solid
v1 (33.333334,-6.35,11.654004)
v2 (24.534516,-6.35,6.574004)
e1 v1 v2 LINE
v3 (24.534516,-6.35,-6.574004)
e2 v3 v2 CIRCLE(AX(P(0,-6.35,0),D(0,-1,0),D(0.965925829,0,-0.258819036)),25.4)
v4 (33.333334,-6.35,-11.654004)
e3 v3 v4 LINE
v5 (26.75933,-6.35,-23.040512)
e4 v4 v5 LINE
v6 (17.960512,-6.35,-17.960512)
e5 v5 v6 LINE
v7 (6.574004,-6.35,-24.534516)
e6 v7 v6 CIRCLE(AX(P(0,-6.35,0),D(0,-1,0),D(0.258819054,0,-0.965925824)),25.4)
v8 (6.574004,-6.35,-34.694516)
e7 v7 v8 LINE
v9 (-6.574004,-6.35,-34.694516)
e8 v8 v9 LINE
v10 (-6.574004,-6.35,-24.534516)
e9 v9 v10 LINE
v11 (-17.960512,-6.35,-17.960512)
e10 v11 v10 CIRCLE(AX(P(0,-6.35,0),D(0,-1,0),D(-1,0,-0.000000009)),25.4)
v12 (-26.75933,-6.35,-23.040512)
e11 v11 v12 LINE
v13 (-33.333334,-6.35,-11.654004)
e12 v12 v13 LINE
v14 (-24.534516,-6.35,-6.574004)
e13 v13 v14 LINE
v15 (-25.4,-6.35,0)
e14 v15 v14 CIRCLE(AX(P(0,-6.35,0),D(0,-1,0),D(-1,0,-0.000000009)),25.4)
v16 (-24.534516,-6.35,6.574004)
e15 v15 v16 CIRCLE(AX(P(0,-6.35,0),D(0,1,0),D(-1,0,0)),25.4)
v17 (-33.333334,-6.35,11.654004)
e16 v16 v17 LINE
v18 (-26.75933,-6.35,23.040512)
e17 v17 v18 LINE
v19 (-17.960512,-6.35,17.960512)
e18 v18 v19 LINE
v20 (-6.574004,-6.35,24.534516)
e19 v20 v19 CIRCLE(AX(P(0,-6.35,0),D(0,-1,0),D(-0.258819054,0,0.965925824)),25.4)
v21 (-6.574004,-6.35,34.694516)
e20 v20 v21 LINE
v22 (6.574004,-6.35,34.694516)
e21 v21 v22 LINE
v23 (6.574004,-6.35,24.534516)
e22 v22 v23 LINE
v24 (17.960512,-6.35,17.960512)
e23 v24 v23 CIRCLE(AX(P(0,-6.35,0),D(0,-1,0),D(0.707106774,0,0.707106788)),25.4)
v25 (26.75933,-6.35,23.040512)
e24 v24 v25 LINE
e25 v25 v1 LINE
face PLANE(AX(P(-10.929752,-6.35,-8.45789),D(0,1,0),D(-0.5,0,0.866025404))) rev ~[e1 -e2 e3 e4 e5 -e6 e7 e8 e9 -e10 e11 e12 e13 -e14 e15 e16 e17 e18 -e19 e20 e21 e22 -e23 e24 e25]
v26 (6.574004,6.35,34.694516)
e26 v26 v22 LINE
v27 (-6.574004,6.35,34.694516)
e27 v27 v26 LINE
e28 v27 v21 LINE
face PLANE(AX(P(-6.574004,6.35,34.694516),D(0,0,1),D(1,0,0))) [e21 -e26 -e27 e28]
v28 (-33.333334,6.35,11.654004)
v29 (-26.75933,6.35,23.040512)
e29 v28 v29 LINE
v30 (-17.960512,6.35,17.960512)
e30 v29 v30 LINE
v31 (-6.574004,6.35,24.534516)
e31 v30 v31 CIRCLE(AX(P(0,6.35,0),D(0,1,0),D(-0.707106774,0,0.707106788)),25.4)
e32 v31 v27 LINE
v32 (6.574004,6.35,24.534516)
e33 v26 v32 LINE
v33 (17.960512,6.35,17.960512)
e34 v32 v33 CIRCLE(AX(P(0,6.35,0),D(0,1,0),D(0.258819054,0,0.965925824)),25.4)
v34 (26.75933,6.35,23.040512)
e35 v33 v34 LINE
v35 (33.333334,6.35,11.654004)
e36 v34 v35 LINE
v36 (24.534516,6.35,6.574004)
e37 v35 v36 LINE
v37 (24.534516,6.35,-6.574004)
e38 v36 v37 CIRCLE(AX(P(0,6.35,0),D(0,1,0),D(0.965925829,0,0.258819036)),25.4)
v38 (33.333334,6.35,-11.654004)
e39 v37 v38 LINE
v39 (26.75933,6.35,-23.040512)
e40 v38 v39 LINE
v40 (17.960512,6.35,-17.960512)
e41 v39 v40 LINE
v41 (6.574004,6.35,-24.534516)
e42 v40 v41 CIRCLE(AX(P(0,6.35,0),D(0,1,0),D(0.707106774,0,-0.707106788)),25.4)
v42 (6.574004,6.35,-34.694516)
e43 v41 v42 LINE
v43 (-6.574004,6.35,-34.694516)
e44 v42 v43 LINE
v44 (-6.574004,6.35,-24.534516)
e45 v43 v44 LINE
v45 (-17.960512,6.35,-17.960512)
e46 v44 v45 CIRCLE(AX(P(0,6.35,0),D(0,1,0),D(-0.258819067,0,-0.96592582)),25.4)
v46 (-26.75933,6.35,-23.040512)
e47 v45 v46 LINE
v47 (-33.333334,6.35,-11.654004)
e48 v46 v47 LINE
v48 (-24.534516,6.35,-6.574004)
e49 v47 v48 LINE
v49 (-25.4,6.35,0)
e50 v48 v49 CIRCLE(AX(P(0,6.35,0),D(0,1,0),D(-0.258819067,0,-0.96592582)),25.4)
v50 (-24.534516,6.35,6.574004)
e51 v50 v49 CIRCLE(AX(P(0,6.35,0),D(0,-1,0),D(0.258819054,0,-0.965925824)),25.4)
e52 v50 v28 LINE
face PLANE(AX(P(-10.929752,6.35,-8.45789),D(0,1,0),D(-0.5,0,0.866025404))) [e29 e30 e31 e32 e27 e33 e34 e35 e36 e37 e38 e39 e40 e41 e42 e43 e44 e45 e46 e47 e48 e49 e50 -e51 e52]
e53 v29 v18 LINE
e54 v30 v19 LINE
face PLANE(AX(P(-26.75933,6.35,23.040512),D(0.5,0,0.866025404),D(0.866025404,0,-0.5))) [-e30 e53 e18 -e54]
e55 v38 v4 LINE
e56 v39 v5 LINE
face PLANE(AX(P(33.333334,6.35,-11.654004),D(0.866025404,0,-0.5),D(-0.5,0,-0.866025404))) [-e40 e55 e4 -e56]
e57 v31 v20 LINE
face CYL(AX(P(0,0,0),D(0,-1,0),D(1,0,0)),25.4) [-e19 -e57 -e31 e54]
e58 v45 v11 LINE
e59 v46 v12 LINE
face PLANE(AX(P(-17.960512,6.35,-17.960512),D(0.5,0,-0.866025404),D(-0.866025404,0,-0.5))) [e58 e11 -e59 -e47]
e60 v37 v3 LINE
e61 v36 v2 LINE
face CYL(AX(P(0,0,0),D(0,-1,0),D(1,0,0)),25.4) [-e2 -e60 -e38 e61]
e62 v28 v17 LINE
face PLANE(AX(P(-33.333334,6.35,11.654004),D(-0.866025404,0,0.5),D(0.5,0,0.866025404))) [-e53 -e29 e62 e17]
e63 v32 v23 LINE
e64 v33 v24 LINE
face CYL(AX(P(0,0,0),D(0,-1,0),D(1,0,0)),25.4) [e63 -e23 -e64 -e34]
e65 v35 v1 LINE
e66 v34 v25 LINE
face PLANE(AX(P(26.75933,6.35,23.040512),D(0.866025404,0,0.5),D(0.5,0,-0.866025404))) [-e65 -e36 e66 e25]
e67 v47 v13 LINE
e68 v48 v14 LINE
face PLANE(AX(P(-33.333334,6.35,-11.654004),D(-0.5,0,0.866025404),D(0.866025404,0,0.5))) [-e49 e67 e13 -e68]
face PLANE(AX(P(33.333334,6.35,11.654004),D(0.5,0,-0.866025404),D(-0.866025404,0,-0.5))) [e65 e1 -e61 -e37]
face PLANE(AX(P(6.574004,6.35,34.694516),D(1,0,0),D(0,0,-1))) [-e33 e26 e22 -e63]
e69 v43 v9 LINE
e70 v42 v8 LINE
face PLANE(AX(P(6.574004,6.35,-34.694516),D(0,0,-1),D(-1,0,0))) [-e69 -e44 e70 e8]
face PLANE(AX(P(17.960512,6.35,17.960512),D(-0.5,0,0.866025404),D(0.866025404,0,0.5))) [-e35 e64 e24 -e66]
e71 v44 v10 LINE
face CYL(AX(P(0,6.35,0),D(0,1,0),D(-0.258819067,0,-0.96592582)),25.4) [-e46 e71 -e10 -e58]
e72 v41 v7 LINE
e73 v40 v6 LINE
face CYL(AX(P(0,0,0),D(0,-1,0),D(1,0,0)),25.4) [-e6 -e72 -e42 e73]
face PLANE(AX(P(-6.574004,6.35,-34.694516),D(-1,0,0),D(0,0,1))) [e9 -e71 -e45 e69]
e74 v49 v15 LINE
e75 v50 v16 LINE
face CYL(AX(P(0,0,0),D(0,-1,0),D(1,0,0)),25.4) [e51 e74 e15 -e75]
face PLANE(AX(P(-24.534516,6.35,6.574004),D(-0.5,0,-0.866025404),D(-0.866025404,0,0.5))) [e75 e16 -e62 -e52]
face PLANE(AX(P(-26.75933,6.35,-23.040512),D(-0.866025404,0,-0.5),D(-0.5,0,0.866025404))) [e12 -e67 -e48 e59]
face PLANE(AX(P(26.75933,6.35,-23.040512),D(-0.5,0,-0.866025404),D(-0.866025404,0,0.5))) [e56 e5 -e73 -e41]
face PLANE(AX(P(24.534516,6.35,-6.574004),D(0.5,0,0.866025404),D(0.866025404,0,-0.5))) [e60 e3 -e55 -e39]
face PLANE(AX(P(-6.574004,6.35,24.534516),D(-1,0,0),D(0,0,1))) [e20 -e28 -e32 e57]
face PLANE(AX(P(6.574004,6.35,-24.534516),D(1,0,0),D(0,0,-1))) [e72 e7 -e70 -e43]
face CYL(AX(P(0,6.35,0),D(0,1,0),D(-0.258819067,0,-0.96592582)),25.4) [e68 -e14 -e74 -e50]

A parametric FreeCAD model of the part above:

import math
import FreeCAD as App
import Part
import Sketcher

V = App.Vector
Q = App.Units.Quantity

doc = App.newDocument("Part")
body = doc.addObject("PartDesign::Body", "Body")

sketch1 = doc.addObject("Sketcher::SketchObject", "Sketch")
body.addObject(sketch1)
sketch1.AttachmentSupport = (doc.XZ_Plane, [""])
sketch1.MapMode = "FlatFace"
sketch1.addGeometry(Part.Circle(V(0, 0, 0), V(0, 0, 1), 25), False)
sketch1.addConstraint(Sketcher.Constraint("Coincident", 0, 3, -1, 1))
sketch1.addConstraint(Sketcher.Constraint("Diameter", 0, Q("2 in")))
pad1 = doc.addObject("PartDesign::Pad", "Pad")
body.addObject(pad1)
pad1.Profile = sketch1
pad1.Length = Q("0.5 in")
pad1.Midplane = True

sketch2 = doc.addObject("Sketcher::SketchObject", "Sketch001")
body.addObject(sketch2)
sketch2.AttachmentSupport = (doc.XZ_Plane, [""])
sketch2.MapMode = "FlatFace"
sketch2.AttachmentOffset = App.Placement(V(0, 0, -0.25 * 25.4), App.Rotation())
sketch2.addGeometry(Part.LineSegment(V(7, -25, 0), V(7, -35, 0)), False)
sketch2.addGeometry(Part.LineSegment(V(7, -35, 0), V(-7, -35, 0)), False)
sketch2.addGeometry(Part.LineSegment(V(-7, -35, 0), V(-7, -25, 0)), False)
sketch2.addGeometry(Part.ArcOfCircle(Part.Circle(V(0, 0, 0), V(0, 0, 1), 25), math.radians(-180), math.radians(-105)), False)
sketch2.addGeometry(Part.ArcOfCircle(Part.Circle(V(0, 0, 0), V(0, 0, 1), 25), math.radians(-75), math.radians(180)), False)
sketch2.addConstraint(Sketcher.Constraint("Coincident", 0, 2, 1, 1))
sketch2.addConstraint(Sketcher.Constraint("Coincident", 1, 2, 2, 1))
sketch2.addConstraint(Sketcher.Constraint("Coincident", 2, 2, 3, 2))
sketch2.addConstraint(Sketcher.Constraint("Tangent", 3, 1, 4, 2))
sketch2.addConstraint(Sketcher.Constraint("Coincident", 4, 1, 0, 1))
sketch2.addConstraint(Sketcher.Constraint("Vertical", 0))
sketch2.addConstraint(Sketcher.Constraint("Horizontal", 1))
sketch2.addConstraint(Sketcher.Constraint("Vertical", 2))
sketch2.addConstraint(Sketcher.Constraint("Coincident", 3, 3, -1, 1))
sketch2.addConstraint(Sketcher.Constraint("Equal", 3, 4))
sketch2.addConstraint(Sketcher.Constraint("PointOnObject", 3, 1, -1))
sketch2.addConstraint(Sketcher.Constraint("Horizontal", 2, 2, 4, 1))
sketch2.addConstraint(Sketcher.Constraint("Radius", 3, Q("1 in")))
sketch2.addConstraint(Sketcher.Constraint("DistanceY", 0, 2, 0, 1, Q("0.4 in")))
sketch2.addConstraint(Sketcher.Constraint("DistanceX", 1, 2, 1, 1, 13.148008))
pad2 = doc.addObject("PartDesign::Pad", "Pad001")
body.addObject(pad2)
pad2.Profile = sketch2
pad2.Length = Q("0.5 in")
body2 = doc.addObject("PartDesign::Body", "Body001")
doc.recompute()

body2.BaseFeature = body
doc.recompute()

body3 = doc.addObject("PartDesign::Body", "Body002")
body3.BaseFeature = body
body3.Placement = App.Placement(V(0, 0, 0), App.Rotation(V(0, -1, 0), 60))
boolean = doc.addObject("PartDesign::Boolean", "Boolean")
body2.addObject(boolean)
boolean.Type = "Fuse"
boolean.addObjects([body3])
doc.recompute()

body4 = doc.addObject("PartDesign::Body", "Body003")
body4.BaseFeature = body
body4.Placement = App.Placement(V(0, 0, 0), App.Rotation(V(0, -1, 0), 120))
boolean2 = doc.addObject("PartDesign::Boolean", "Boolean001")
body2.addObject(boolean2)
boolean2.Type = "Fuse"
boolean2.addObjects([body4])
doc.recompute()

body5 = doc.addObject("PartDesign::Body", "Body004")
body5.BaseFeature = body
body5.Placement = App.Placement(V(0, 0, 0), App.Rotation(V(0, -1, 0), 180))
boolean3 = doc.addObject("PartDesign::Boolean", "Boolean002")
body2.addObject(boolean3)
boolean3.Type = "Fuse"
boolean3.addObjects([body5])
doc.recompute()

body6 = doc.addObject("PartDesign::Body", "Body005")
body6.BaseFeature = body
body6.Placement = App.Placement(V(0, 0, 0), App.Rotation(V(0, -1, 0), 240))
boolean4 = doc.addObject("PartDesign::Boolean", "Boolean003")
body2.addObject(boolean4)
boolean4.Type = "Fuse"
boolean4.addObjects([body6])
doc.recompute()

body.Placement = App.Placement(V(0, 0, 0), App.Rotation(V(0, -1, 0), 300))
boolean5 = doc.addObject("PartDesign::Boolean", "Boolean004")
body2.addObject(boolean5)
boolean5.Type = "Fuse"
boolean5.addObjects([body])

doc.recompute()
